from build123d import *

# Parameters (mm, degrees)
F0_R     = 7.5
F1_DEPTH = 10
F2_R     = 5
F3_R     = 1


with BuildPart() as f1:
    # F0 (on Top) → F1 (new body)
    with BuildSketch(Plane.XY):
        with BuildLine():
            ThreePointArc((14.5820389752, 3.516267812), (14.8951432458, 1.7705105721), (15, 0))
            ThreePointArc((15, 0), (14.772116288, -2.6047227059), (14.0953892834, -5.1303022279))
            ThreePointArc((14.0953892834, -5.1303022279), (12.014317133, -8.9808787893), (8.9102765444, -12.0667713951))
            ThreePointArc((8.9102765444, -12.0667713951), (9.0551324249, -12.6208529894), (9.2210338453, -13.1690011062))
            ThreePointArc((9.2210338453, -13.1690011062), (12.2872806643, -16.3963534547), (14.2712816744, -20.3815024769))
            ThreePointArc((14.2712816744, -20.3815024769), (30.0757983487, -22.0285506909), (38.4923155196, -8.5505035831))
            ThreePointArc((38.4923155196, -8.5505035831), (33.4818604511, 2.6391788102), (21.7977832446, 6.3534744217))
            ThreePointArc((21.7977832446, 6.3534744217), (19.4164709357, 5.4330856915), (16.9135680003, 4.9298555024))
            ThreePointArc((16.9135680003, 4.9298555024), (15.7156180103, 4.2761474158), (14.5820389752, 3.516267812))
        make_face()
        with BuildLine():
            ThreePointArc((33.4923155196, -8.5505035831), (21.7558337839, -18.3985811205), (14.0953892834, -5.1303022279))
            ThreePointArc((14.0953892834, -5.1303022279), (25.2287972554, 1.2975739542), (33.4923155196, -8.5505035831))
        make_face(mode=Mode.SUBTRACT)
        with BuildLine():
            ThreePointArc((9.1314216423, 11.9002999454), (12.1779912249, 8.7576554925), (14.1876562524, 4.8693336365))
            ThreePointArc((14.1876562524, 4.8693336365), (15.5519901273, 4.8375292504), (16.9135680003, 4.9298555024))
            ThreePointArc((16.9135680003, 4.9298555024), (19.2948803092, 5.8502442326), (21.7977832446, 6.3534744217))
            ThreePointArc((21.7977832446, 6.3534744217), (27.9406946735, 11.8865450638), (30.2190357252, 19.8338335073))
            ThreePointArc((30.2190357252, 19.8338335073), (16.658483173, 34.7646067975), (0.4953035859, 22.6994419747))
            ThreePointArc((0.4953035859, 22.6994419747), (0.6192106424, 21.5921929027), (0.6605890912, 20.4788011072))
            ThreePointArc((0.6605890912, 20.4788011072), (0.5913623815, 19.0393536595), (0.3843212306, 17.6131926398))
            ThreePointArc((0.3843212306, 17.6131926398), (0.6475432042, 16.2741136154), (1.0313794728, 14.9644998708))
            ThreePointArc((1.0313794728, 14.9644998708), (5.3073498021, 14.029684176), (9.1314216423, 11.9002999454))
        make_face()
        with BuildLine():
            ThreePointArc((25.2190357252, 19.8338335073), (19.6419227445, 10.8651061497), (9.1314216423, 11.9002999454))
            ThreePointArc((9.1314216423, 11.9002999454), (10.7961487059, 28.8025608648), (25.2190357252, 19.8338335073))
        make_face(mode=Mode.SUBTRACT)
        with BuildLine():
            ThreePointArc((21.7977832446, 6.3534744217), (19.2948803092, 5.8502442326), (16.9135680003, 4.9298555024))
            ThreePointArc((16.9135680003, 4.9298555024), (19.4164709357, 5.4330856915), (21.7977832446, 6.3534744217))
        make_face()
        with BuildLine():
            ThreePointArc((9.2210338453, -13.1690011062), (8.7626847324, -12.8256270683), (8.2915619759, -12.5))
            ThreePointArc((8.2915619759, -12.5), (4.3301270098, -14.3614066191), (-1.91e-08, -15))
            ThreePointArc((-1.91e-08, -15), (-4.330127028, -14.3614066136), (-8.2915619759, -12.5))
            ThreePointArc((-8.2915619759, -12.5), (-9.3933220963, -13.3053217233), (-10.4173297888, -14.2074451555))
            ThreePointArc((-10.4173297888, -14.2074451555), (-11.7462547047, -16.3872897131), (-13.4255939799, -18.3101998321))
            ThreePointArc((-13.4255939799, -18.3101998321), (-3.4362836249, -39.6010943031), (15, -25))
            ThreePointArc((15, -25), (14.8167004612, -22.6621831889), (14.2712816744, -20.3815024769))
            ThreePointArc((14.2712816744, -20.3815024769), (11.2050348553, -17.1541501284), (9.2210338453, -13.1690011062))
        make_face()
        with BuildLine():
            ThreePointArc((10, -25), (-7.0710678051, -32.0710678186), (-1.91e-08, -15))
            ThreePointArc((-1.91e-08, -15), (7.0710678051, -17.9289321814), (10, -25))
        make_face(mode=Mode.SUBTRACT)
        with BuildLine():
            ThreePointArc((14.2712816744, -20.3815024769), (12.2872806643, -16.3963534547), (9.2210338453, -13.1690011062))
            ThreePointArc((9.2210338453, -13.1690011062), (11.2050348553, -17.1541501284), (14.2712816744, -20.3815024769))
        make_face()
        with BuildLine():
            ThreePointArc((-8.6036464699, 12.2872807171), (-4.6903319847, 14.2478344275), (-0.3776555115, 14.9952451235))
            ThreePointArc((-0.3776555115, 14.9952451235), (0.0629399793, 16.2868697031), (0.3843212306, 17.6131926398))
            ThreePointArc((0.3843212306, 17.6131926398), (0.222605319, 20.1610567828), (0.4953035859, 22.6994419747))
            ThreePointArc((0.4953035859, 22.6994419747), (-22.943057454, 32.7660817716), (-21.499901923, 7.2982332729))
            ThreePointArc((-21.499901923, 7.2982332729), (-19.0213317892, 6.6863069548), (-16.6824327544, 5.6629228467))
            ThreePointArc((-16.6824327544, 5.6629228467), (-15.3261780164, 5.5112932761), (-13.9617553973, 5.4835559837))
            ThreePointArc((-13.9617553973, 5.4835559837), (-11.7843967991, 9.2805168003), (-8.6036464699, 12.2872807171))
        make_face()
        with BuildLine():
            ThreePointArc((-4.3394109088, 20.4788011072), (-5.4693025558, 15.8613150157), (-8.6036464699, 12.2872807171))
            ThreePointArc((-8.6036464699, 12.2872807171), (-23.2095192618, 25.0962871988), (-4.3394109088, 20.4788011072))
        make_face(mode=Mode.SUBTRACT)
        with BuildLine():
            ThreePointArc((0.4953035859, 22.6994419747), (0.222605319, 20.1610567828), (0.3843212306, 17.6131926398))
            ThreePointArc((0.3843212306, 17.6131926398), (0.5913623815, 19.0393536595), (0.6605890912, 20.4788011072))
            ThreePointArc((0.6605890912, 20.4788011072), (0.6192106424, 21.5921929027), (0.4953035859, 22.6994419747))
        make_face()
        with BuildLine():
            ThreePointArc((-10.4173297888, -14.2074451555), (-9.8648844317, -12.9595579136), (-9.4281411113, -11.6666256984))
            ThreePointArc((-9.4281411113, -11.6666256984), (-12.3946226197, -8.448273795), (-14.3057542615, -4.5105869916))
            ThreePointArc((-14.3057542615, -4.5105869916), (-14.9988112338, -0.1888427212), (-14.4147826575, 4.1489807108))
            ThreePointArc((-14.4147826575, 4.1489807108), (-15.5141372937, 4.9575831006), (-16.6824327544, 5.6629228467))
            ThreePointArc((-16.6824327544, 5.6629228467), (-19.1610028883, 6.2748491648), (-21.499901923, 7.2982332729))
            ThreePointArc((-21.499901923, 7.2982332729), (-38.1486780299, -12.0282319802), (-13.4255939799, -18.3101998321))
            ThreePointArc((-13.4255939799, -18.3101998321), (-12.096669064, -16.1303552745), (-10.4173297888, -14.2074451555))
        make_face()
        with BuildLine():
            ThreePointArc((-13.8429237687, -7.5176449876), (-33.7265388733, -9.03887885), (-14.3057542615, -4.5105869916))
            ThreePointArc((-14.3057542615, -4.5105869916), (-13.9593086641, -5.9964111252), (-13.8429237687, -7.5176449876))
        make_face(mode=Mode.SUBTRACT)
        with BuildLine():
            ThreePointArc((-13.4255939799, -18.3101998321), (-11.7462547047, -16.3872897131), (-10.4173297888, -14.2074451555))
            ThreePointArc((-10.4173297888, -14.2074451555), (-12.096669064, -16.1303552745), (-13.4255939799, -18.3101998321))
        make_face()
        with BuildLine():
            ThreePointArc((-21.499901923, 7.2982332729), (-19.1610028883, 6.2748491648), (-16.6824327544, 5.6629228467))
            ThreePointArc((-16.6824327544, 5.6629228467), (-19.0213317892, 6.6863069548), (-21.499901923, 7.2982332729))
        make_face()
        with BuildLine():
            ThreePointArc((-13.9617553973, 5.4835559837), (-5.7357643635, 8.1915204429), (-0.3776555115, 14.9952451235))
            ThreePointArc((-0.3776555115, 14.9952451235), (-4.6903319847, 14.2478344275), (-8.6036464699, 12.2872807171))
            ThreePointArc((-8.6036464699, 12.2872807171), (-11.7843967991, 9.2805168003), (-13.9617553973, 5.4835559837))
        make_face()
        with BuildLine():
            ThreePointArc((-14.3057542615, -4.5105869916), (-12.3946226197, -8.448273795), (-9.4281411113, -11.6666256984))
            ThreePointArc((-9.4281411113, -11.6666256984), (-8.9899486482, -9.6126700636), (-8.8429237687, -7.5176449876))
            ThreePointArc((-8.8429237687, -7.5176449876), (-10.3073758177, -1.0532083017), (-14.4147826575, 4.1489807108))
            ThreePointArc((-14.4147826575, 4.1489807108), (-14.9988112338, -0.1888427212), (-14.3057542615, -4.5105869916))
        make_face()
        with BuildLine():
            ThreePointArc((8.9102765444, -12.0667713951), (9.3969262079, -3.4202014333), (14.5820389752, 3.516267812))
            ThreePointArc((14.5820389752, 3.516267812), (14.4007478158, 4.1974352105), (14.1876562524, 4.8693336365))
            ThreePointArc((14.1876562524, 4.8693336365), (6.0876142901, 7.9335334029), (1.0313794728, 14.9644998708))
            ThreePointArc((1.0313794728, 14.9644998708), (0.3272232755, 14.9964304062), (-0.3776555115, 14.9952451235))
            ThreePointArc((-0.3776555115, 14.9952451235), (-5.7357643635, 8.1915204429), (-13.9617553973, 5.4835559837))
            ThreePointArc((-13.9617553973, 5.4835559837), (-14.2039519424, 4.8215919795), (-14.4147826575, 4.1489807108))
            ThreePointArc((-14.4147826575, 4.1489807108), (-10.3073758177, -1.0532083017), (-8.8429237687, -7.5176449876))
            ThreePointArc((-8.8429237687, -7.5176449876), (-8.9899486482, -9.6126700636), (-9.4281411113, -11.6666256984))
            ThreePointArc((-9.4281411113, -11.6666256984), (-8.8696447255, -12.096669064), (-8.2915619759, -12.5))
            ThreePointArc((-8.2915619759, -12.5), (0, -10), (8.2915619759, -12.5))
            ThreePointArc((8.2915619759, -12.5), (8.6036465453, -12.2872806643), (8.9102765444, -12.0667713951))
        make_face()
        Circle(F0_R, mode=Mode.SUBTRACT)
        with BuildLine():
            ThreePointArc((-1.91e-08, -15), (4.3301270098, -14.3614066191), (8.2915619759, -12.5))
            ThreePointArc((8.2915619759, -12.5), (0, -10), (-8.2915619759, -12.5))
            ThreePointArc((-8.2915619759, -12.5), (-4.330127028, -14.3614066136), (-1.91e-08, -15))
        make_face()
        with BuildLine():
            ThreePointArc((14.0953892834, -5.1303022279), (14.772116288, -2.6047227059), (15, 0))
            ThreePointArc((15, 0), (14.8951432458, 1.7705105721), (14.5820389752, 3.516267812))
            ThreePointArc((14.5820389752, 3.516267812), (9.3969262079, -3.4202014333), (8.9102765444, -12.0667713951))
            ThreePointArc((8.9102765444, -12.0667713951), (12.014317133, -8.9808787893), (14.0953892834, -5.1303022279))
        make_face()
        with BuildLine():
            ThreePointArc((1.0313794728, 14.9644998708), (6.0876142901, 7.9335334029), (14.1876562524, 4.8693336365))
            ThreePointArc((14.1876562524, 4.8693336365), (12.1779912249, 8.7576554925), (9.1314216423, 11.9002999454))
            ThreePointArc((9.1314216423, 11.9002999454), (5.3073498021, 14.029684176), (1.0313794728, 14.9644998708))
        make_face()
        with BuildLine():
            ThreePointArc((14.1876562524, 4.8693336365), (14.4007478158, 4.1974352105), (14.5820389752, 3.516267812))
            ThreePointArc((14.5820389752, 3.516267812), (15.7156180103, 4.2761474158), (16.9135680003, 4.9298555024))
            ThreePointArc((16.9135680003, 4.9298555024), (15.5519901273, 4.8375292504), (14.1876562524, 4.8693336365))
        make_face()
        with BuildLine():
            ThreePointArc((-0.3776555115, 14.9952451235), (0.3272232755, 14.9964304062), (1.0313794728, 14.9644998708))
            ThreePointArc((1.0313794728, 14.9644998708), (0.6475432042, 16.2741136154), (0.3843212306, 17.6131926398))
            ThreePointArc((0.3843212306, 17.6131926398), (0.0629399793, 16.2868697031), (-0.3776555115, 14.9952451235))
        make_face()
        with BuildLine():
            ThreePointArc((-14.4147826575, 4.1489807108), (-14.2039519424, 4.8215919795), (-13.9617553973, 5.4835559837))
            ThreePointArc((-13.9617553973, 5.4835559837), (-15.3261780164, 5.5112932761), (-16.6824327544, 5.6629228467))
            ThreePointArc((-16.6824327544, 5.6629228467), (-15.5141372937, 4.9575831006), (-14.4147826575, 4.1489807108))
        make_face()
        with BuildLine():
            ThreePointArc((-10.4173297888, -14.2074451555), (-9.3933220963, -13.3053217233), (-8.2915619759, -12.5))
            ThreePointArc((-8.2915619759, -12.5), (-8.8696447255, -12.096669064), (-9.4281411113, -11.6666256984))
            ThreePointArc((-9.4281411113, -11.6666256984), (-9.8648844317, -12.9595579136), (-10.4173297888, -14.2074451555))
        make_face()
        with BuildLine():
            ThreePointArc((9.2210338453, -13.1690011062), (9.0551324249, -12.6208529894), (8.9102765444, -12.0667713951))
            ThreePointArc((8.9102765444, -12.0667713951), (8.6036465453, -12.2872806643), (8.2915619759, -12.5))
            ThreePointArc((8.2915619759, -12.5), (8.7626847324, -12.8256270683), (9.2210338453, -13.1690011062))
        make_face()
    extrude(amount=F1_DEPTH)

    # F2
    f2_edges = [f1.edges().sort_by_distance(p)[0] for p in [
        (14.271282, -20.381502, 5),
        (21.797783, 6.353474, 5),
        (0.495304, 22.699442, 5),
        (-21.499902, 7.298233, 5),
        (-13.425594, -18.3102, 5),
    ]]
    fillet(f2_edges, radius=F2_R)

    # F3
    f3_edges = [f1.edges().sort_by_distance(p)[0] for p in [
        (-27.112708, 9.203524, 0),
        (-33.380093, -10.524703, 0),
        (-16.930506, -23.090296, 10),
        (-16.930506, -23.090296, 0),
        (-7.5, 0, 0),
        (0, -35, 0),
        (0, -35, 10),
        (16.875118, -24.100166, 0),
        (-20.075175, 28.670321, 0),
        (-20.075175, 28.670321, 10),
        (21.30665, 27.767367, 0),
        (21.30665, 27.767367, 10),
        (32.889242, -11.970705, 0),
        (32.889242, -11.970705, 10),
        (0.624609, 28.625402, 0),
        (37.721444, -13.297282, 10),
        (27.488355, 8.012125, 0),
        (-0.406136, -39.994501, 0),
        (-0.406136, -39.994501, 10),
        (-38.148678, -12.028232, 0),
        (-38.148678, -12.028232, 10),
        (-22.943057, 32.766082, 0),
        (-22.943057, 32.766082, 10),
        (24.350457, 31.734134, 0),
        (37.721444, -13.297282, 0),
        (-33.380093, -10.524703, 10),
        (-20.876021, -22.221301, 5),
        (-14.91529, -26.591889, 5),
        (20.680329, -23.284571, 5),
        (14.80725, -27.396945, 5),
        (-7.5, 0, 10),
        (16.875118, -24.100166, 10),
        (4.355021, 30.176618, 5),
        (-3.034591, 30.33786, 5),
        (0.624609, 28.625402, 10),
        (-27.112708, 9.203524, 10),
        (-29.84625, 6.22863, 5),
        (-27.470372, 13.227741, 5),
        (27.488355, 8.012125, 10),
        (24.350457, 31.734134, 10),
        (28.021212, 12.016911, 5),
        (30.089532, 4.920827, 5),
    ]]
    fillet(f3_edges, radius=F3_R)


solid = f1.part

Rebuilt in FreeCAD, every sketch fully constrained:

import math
import FreeCAD as App
import Part
import Sketcher
Q = App.Units.Quantity


def edges_at(feature, points):
    """Names of the edges that pass closest to the given points."""
    edges = feature.Shape.Edges
    near = lambda p: min(range(len(edges)), key=lambda i: edges[i].distToShape(Part.Vertex(*p))[0])
    return sorted({f"Edge{near(p) + 1}" for p in points})

doc = App.newDocument("Part")
body = doc.addObject("PartDesign::Body", "Body")

sketch1 = doc.addObject("Sketcher::SketchObject", "Sketch")
body.addObject(sketch1)
sketch1.AttachmentSupport = (doc.XY_Plane, [""])
sketch1.MapMode = "FlatFace"
sketch1.addGeometry([
    Part.ArcOfCircle(Part.Circle(App.Vector(-14.3, 20.5, 0), App.Vector(0, 0, 1), 15), math.radians(9), math.radians(241)),
    Part.ArcOfCircle(Part.Circle(App.Vector(-23.8, -7.5, 0), App.Vector(0, 0, 1), 15), math.radians(81), math.radians(314)),
    Part.ArcOfCircle(Part.Circle(App.Vector(0, -25, 0), App.Vector(0, 0, 1), 15), math.radians(154), math.radians(360)),
    Part.ArcOfCircle(Part.Circle(App.Vector(0, -25, 0), App.Vector(0, 0, 1), 15), math.radians(0), math.radians(17.93)),
    Part.ArcOfCircle(Part.Circle(App.Vector(23.5, -8.6, 0), App.Vector(0, 0, 1), 15), math.radians(-128), math.radians(0)),
    Part.ArcOfCircle(Part.Circle(App.Vector(23.5, -8.6, 0), App.Vector(0, 0, 1), 15), math.radians(0), math.radians(96)),
    Part.ArcOfCircle(Part.Circle(App.Vector(15.2, 19.8, 0), App.Vector(0, 0, 1), 15), math.radians(-64), math.radians(0)),
    Part.ArcOfCircle(Part.Circle(App.Vector(15.2, 19.8, 0), App.Vector(0, 0, 1), 15), math.radians(0), math.radians(169)),
    Part.ArcOfCircle(Part.Circle(App.Vector(-23.8, -7.5, 0), App.Vector(0, 0, 1), 10), math.radians(18), math.radians(360)),
    Part.ArcOfCircle(Part.Circle(App.Vector(-23.8, -7.5, 0), App.Vector(0, 0, 1), 10), math.radians(0), math.radians(17.5)),
    Part.ArcOfCircle(Part.Circle(App.Vector(0, -25, 0), App.Vector(0, 0, 1), 10), math.radians(90), math.radians(360)),
    Part.ArcOfCircle(Part.Circle(App.Vector(0, -25, 0), App.Vector(0, 0, 1), 10), math.radians(0), math.radians(90)),
    Part.ArcOfCircle(Part.Circle(App.Vector(23.5, -8.6, 0), App.Vector(0, 0, 1), 10), math.radians(160), math.radians(360)),
    Part.ArcOfCircle(Part.Circle(App.Vector(23.5, -8.6, 0), App.Vector(0, 0, 1), 10), math.radians(0), math.radians(160)),
    Part.ArcOfCircle(Part.Circle(App.Vector(-14.3, 20.5, 0), App.Vector(0, 0, 1), 10), math.radians(-55), math.radians(0)),
    Part.ArcOfCircle(Part.Circle(App.Vector(-14.3, 20.5, 0), App.Vector(0, 0, 1), 10), math.radians(0), math.radians(305)),
    Part.Circle(App.Vector(0, 0, 0), App.Vector(0, 0, 1), 7.5),
    Part.ArcOfCircle(Part.Circle(App.Vector(15.2, 19.8, 0), App.Vector(0, 0, 1), 10), math.radians(-127), math.radians(0)),
    Part.ArcOfCircle(Part.Circle(App.Vector(15.2, 19.8, 0), App.Vector(0, 0, 1), 10), math.radians(0), math.radians(233)),
], False)
sketch1.addConstraint([
    Sketcher.Constraint("Coincident", 0, 2, 1, 1),
    Sketcher.Constraint("Coincident", 1, 2, 2, 1),
    Sketcher.Constraint("Tangent", 2, 2, 3, 1),
    Sketcher.Constraint("Coincident", 3, 2, 4, 1),
    Sketcher.Constraint("Tangent", 4, 2, 5, 1),
    Sketcher.Constraint("Coincident", 5, 2, 6, 1),
    Sketcher.Constraint("Tangent", 6, 2, 7, 1),
    Sketcher.Constraint("Coincident", 7, 2, 0, 1),
    Sketcher.Constraint("Tangent", 8, 1, 9, 2),
    Sketcher.Constraint("Coincident", 9, 1, 8, 2),
    Sketcher.Constraint("Tangent", 10, 1, 11, 2),
    Sketcher.Constraint("Coincident", 11, 1, 10, 2),
    Sketcher.Constraint("Tangent", 12, 1, 13, 2),
    Sketcher.Constraint("Coincident", 13, 1, 12, 2),
    Sketcher.Constraint("Tangent", 14, 1, 15, 2),
    Sketcher.Constraint("Coincident", 15, 1, 14, 2),
    Sketcher.Constraint("Tangent", 17, 1, 18, 2),
    Sketcher.Constraint("Coincident", 18, 1, 17, 2),
    Sketcher.Constraint("Coincident", 16, 3, -1, 1),
    Sketcher.Constraint("Coincident", 8, 3, 1, 3),
    Sketcher.Constraint("Coincident", 10, 3, 2, 3),
    Sketcher.Constraint("Coincident", 12, 3, 4, 3),
    Sketcher.Constraint("Coincident", 14, 3, 0, 3),
    Sketcher.Constraint("Coincident", 17, 3, 6, 3),
    Sketcher.Constraint("Equal", 0, 1),
    Sketcher.Constraint("Equal", 1, 2),
    Sketcher.Constraint("Equal", 2, 3),
    Sketcher.Constraint("Equal", 3, 4),
    Sketcher.Constraint("Equal", 4, 5),
    Sketcher.Constraint("Equal", 5, 6),
    Sketcher.Constraint("Equal", 6, 7),
    Sketcher.Constraint("Equal", 9, 10),
    Sketcher.Constraint("Equal", 11, 12),
    Sketcher.Constraint("Equal", 13, 14),
    Sketcher.Constraint("Equal", 15, 17),
    Sketcher.Constraint("PointOnObject", 2, 3, -2),
    Sketcher.Constraint("PointOnObject", 10, 1, -2),
    Sketcher.Constraint("Horizontal", 11, 3, 2, 2),
    Sketcher.Constraint("Horizontal", 13, 3, 4, 2),
    Sketcher.Constraint("Horizontal", 18, 3, 6, 2),
    Sketcher.Constraint("Horizontal", 8, 3, 9, 1),
    Sketcher.Constraint("Horizontal", 2, 2, 11, 1),
    Sketcher.Constraint("Horizontal", 4, 2, 13, 1),
    Sketcher.Constraint("Horizontal", 14, 3, 15, 1),
    Sketcher.Constraint("Horizontal", 6, 2, 18, 1),
    Sketcher.Constraint("Diameter", 16, Q("15 mm")),
    Sketcher.Constraint("Radius", 0, Q("15 mm")),
    Sketcher.Constraint("Radius", 8, Q("10 mm")),
    Sketcher.Constraint("DistanceY", 2, 3, -1, 1, Q("25 mm")),
    Sketcher.Constraint("DistanceY", 3, 2, 4, 3, Q("11.830999 mm")),
    Sketcher.Constraint("DistanceY", -1, 1, 0, 3, Q("20.478801 mm")),
    Sketcher.Constraint("DistanceX", 0, 2, -1, 1, Q("21.499902 mm")),
    Sketcher.Constraint("DistanceY", 1, 2, -1, 1, Q("18.3102 mm")),
    Sketcher.Constraint("DistanceY", -1, 1, 17, 1, Q("11.9003 mm")),
    Sketcher.Constraint("DistanceY", 4, 3, 12, 1, Q("3.420201 mm")),
    Sketcher.Constraint("DistanceX", 0, 3, -1, 1, Q("14.339411 mm")),
    Sketcher.Constraint("DistanceX", -1, 1, 3, 2, Q("14.271282 mm")),
    Sketcher.Constraint("DistanceY", -1, 1, 7, 2, Q("22.699442 mm")),
    Sketcher.Constraint("DistanceY", -1, 1, 14, 1, Q("12.287281 mm")),
    Sketcher.Constraint("DistanceX", -1, 1, 17, 1, Q("9.131422 mm")),
    Sketcher.Constraint("DistanceX", 1, 3, 8, 1, Q("9.53717 mm")),
])
pad1 = doc.addObject("PartDesign::Pad", "Pad")
body.addObject(pad1)
pad1.Profile = sketch1
pad1.Length = 10
doc.recompute()

fillet = doc.addObject("PartDesign::Fillet", "Fillet")
body.addObject(fillet)
fillet.Base = (pad1, edges_at(pad1, [
    (14.271, -20.382, 5),
    (21.798, 6.353, 5),
    (0.495, 22.699, 5),
    (-21.5, 7.298, 5),
    (-13.426, -18.31, 5),
]))
fillet.Radius = 5
doc.recompute()

fillet2 = doc.addObject("PartDesign::Fillet", "Fillet001")
body.addObject(fillet2)
fillet2.Base = (fillet, edges_at(fillet, [
    (-27.113, 9.204, 0),
    (-33.727, -9.039, 0),
    (-16.931, -23.09, 10),
    (-16.931, -23.09, 0),
    (-7.5, 0, 0),
    (-7.071, -32.071, 0),
    (-7.071, -32.071, 10),
    (16.875, -24.1, 0),
    (-23.21, 25.096, 0),
    (-23.21, 25.096, 10),
    (10.796, 28.803, 0),
    (10.796, 28.803, 10),
    (21.756, -18.399, 0),
    (21.756, -18.399, 10),
    (0.625, 28.625, 0),
    (33.053, -20.109, 10),
    (27.488, 8.012, 0),
    (-0.406, -39.995, 0),
    (-0.406, -39.995, 10),
    (-38.149, -12.028, 0),
    (-38.149, -12.028, 10),
    (-22.943, 32.766, 0),
    (-22.943, 32.766, 10),
    (20.789, 33.762, 0),
    (33.053, -20.109, 0),
    (-33.727, -9.039, 10),
    (-20.876, -22.221, 5),
    (-14.915, -26.592, 5),
    (20.68, -23.285, 5),
    (14.807, -27.397, 5),
    (-7.5, 0, 10),
    (16.875, -24.1, 10),
    (4.355, 30.177, 5),
    (-3.035, 30.338, 5),
    (0.625, 28.625, 10),
    (-27.113, 9.204, 10),
    (-29.846, 6.229, 5),
    (-27.47, 13.228, 5),
    (27.488, 8.012, 10),
    (20.789, 33.762, 10),
    (28.021, 12.017, 5),
    (30.09, 4.921, 5),
]))
fillet2.Radius = 1

doc.recompute()
